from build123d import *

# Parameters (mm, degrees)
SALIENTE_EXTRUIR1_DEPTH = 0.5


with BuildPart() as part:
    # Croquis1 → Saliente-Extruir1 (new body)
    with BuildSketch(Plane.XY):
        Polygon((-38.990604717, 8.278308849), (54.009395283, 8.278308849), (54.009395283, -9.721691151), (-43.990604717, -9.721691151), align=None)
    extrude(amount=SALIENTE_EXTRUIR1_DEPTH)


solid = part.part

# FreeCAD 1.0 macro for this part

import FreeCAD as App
import Part
import Sketcher

V = App.Vector

doc = App.newDocument("Part")
params = doc.addObject("Spreadsheet::Sheet", "Params")
for row, (alias, value) in enumerate([
    ("sketch1_width", "93 mm"),
    ("sketch1_width2", "98 mm"),
    ("sketch1_height", "18 mm"),
    ("pad1_length", "0.5 mm"),
], start=1):
    params.set(f"A{row}", alias)
    params.set(f"B{row}", "=" + value)
    params.setAlias(f"B{row}", alias)

body = doc.addObject("PartDesign::Body", "Body")

# Sketch on XY plane
sketch1 = body.newObject("Sketcher::SketchObject", "Sketch")
sketch1.AttachmentSupport = (doc.getObject("XY_Plane"), [""])
sketch1.MapMode = "FlatFace"
sketch1.addGeometry([
    Part.LineSegment(V(54, 8, 0), V(-39, 8, 0)),
    Part.LineSegment(V(-39, 8, 0), V(-44, -10, 0)),
    Part.LineSegment(V(-44, -10, 0), V(54, -10, 0)),
    Part.LineSegment(V(54, -10, 0), V(54, 8, 0)),
], False)
sketch1.addConstraint([
    Sketcher.Constraint("Coincident", 0, 2, 1, 1),
    Sketcher.Constraint("Coincident", 1, 2, 2, 1),
    Sketcher.Constraint("Coincident", 2, 2, 3, 1),
    Sketcher.Constraint("Coincident", 3, 2, 0, 1),
    Sketcher.Constraint("Horizontal", 0),
    Sketcher.Constraint("Horizontal", 2),
    Sketcher.Constraint("Vertical", 3),
    Sketcher.Constraint("DistanceX", 0, 2, 0, 1, 93.0),
    Sketcher.Constraint("DistanceX", 2, 1, 2, 2, 98.0),
    Sketcher.Constraint("DistanceY", 3, 1, 3, 2, 18.0),
    Sketcher.Constraint("DistanceY", -1, 1, 0, 2, 8.278309),
    Sketcher.Constraint("DistanceX", 0, 2, -1, 1, 38.990605),
])
sketch1.setExpression("Constraints[7]", "Params.sketch1_width")
sketch1.setExpression("Constraints[8]", "Params.sketch1_width2")
sketch1.setExpression("Constraints[9]", "Params.sketch1_height")
pad1 = body.newObject("PartDesign::Pad", "Pad")
pad1.Profile = sketch1
pad1.setExpression("Length", "Params.pad1_length")

doc.recompute()
